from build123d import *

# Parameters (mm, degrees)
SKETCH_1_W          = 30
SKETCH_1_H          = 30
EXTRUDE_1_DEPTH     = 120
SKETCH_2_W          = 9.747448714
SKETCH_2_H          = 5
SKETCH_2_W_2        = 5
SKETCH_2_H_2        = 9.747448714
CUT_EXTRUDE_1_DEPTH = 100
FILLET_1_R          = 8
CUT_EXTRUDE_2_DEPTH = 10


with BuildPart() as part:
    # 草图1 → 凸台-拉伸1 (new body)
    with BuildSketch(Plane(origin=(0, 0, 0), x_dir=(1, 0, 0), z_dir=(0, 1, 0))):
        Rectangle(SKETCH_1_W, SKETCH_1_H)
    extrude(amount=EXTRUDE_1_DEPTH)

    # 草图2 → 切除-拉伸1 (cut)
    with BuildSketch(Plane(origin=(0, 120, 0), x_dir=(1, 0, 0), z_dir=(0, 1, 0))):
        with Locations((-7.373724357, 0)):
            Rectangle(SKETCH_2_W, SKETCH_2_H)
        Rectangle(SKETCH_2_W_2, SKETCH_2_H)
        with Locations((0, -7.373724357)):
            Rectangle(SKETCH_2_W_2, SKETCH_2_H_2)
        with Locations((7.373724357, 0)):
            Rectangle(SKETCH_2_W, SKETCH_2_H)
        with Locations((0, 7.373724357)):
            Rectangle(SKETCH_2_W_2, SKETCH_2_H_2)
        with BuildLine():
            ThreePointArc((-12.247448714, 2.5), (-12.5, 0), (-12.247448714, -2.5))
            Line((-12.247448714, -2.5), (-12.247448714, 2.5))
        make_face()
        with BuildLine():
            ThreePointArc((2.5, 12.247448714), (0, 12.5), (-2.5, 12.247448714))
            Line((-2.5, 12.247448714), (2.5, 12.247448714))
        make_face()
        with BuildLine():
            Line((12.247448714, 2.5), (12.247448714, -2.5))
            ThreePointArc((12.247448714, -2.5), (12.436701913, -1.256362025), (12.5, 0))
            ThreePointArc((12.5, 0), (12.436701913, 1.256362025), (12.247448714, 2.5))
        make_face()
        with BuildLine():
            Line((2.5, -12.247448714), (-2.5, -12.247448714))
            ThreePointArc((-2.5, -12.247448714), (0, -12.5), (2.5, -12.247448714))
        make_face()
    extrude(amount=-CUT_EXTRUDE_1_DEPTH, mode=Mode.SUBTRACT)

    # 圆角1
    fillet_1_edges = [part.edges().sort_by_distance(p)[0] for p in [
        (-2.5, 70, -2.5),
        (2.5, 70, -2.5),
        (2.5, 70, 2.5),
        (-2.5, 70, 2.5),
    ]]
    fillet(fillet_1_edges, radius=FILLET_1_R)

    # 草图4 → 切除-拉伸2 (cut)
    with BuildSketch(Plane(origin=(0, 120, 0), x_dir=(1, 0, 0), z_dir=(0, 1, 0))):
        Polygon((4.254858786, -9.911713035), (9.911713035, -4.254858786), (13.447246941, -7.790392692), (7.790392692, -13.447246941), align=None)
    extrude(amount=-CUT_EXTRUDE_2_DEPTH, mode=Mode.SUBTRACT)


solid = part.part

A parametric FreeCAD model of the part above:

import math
import FreeCAD as App
import Part
import Sketcher
from FreeCAD import Vector
Q = App.Units.Quantity


def edges_at(feature, points):
    """Names of the edges that pass closest to the given points."""
    edges = feature.Shape.Edges
    near = lambda p: min(range(len(edges)), key=lambda i: edges[i].distToShape(Part.Vertex(*p))[0])
    return sorted({f"Edge{near(p) + 1}" for p in points})

doc = App.newDocument("Part")
body = doc.addObject("PartDesign::Body", "Body")

sketch1 = doc.addObject("Sketcher::SketchObject", "Sketch")
body.addObject(sketch1)
sketch1.AttachmentSupport = (doc.XZ_Plane, [""])
sketch1.MapMode = "FlatFace"
sketch1.addGeometry(Part.LineSegment(Vector(-15, -15, 0), Vector(-15, 15, 0)), False)
sketch1.addGeometry(Part.LineSegment(Vector(-15, 15, 0), Vector(15, 15, 0)), False)
sketch1.addGeometry(Part.LineSegment(Vector(15, 15, 0), Vector(15, -15, 0)), False)
sketch1.addGeometry(Part.LineSegment(Vector(15, -15, 0), Vector(-15, -15, 0)), False)
sketch1.addConstraint(Sketcher.Constraint("Coincident", 0, 2, 1, 1))
sketch1.addConstraint(Sketcher.Constraint("Coincident", 1, 2, 2, 1))
sketch1.addConstraint(Sketcher.Constraint("Coincident", 2, 2, 3, 1))
sketch1.addConstraint(Sketcher.Constraint("Coincident", 3, 2, 0, 1))
sketch1.addConstraint(Sketcher.Constraint("Vertical", 0))
sketch1.addConstraint(Sketcher.Constraint("Horizontal", 1))
sketch1.addConstraint(Sketcher.Constraint("Vertical", 2))
sketch1.addConstraint(Sketcher.Constraint("Horizontal", 3))
sketch1.addConstraint(Sketcher.Constraint("Symmetric", 0, 2, 2, 2, -1, 1))
sketch1.addConstraint(Sketcher.Constraint("Equal", 3, 0))
sketch1.addConstraint(Sketcher.Constraint("DistanceX", 1, 1, 1, 2, 30.0))
pad1 = doc.addObject("PartDesign::Pad", "Pad")
body.addObject(pad1)
pad1.Profile = sketch1
pad1.Length = 120
pad1.Reversed = True

sketch2 = doc.addObject("Sketcher::SketchObject", "Sketch001")
body.addObject(sketch2)
sketch2.AttachmentSupport = (doc.XZ_Plane, [""])
sketch2.MapMode = "FlatFace"
sketch2.AttachmentOffset = App.Placement(Vector(0, 0, -120), App.Rotation())
sketch2.addGeometry(Part.LineSegment(Vector(-12.2, 2.5, 0), Vector(-2.5, 2.5, 0)), False)
sketch2.addGeometry(Part.LineSegment(Vector(-2.5, 2.5, 0), Vector(-2.5, 12.2, 0)), False)
sketch2.addGeometry(Part.ArcOfCircle(Part.Circle(Vector(0, 0, 0), Vector(0, 0, 1), 12.5), math.radians(78), math.radians(102)), False)
sketch2.addGeometry(Part.LineSegment(Vector(2.5, 12.2, 0), Vector(2.5, 2.5, 0)), False)
sketch2.addGeometry(Part.LineSegment(Vector(2.5, 2.5, 0), Vector(12.2, 2.5, 0)), False)
sketch2.addGeometry(Part.ArcOfCircle(Part.Circle(Vector(0, 0, 0), Vector(0, 0, 1), 12.5), math.radians(0), math.radians(11.54)), False)
sketch2.addGeometry(Part.ArcOfCircle(Part.Circle(Vector(0, 0, 0), Vector(0, 0, 1), 12.5), math.radians(-11.54), math.radians(0)), False)
sketch2.addGeometry(Part.LineSegment(Vector(12.2, -2.5, 0), Vector(2.5, -2.5, 0)), False)
sketch2.addGeometry(Part.LineSegment(Vector(2.5, -2.5, 0), Vector(2.5, -12.2, 0)), False)
sketch2.addGeometry(Part.ArcOfCircle(Part.Circle(Vector(0, 0, 0), Vector(0, 0, 1), 12.5), math.radians(-102), math.radians(-78)), False)
sketch2.addGeometry(Part.LineSegment(Vector(-2.5, -12.2, 0), Vector(-2.5, -2.5, 0)), False)
sketch2.addGeometry(Part.LineSegment(Vector(-2.5, -2.5, 0), Vector(-12.2, -2.5, 0)), False)
sketch2.addGeometry(Part.ArcOfCircle(Part.Circle(Vector(0, 0, 0), Vector(0, 0, 1), 12.5), math.radians(168), math.radians(192)), False)
sketch2.addConstraint(Sketcher.Constraint("Coincident", 0, 2, 1, 1))
sketch2.addConstraint(Sketcher.Constraint("Coincident", 1, 2, 2, 2))
sketch2.addConstraint(Sketcher.Constraint("Coincident", 2, 1, 3, 1))
sketch2.addConstraint(Sketcher.Constraint("Coincident", 3, 2, 4, 1))
sketch2.addConstraint(Sketcher.Constraint("Coincident", 4, 2, 5, 2))
sketch2.addConstraint(Sketcher.Constraint("Tangent", 5, 1, 6, 2))
sketch2.addConstraint(Sketcher.Constraint("Coincident", 6, 1, 7, 1))
sketch2.addConstraint(Sketcher.Constraint("Coincident", 7, 2, 8, 1))
sketch2.addConstraint(Sketcher.Constraint("Coincident", 8, 2, 9, 2))
sketch2.addConstraint(Sketcher.Constraint("Coincident", 9, 1, 10, 1))
sketch2.addConstraint(Sketcher.Constraint("Coincident", 10, 2, 11, 1))
sketch2.addConstraint(Sketcher.Constraint("Coincident", 11, 2, 12, 2))
sketch2.addConstraint(Sketcher.Constraint("Coincident", 12, 1, 0, 1))
sketch2.addConstraint(Sketcher.Constraint("Horizontal", 0))
sketch2.addConstraint(Sketcher.Constraint("Vertical", 1))
sketch2.addConstraint(Sketcher.Constraint("Vertical", 3))
sketch2.addConstraint(Sketcher.Constraint("Horizontal", 4))
sketch2.addConstraint(Sketcher.Constraint("Horizontal", 7))
sketch2.addConstraint(Sketcher.Constraint("Vertical", 8))
sketch2.addConstraint(Sketcher.Constraint("Vertical", 10))
sketch2.addConstraint(Sketcher.Constraint("Horizontal", 11))
sketch2.addConstraint(Sketcher.Constraint("Coincident", 2, 3, -1, 1))
sketch2.addConstraint(Sketcher.Constraint("Coincident", 5, 3, -1, 1))
sketch2.addConstraint(Sketcher.Constraint("Coincident", 9, 3, -1, 1))
sketch2.addConstraint(Sketcher.Constraint("Coincident", 12, 3, -1, 1))
sketch2.addConstraint(Sketcher.Constraint("Equal", 2, 5))
sketch2.addConstraint(Sketcher.Constraint("Equal", 5, 6))
sketch2.addConstraint(Sketcher.Constraint("Equal", 6, 9))
sketch2.addConstraint(Sketcher.Constraint("Equal", 9, 12))
sketch2.addConstraint(Sketcher.Constraint("Symmetric", 0, 2, 7, 2, -1, 1))
sketch2.addConstraint(Sketcher.Constraint("Symmetric", 3, 2, 10, 2, -1, 1))
sketch2.addConstraint(Sketcher.Constraint("Symmetric", 0, 2, 3, 2, -2))
sketch2.addConstraint(Sketcher.Constraint("PointOnObject", 5, 1, -1))
sketch2.addConstraint(Sketcher.Constraint("Equal", 11, 1))
sketch2.addConstraint(Sketcher.Constraint("Radius", 2, 12.5))
sketch2.addConstraint(Sketcher.Constraint("DistanceX", 1, 2, 2, 1, 5.0))
pocket1 = doc.addObject("PartDesign::Pocket", "Pocket")
body.addObject(pocket1)
pocket1.Profile = sketch2
pocket1.Length = 100
pocket1.Reversed = True
doc.recompute()

fillet = doc.addObject("PartDesign::Fillet", "Fillet")
body.addObject(fillet)
fillet.Base = (pocket1, edges_at(pocket1, [
    (-2.5, 70, -2.5),
    (2.5, 70, -2.5),
    (2.5, 70, 2.5),
    (-2.5, 70, 2.5),
]))
fillet.Radius = 8

sketch3 = doc.addObject("Sketcher::SketchObject", "Sketch002")
body.addObject(sketch3)
sketch3.AttachmentSupport = (doc.XZ_Plane, [""])
sketch3.MapMode = "FlatFace"
sketch3.AttachmentOffset = App.Placement(Vector(0, 0, -120), App.Rotation())
sketch3.addGeometry(Part.LineSegment(Vector(10, 4, 0), Vector(4, 10, 0)), False)
sketch3.addGeometry(Part.LineSegment(Vector(4, 10, 0), Vector(8, 13, 0)), False)
sketch3.addGeometry(Part.LineSegment(Vector(8, 13, 0), Vector(13, 8, 0)), False)
sketch3.addGeometry(Part.LineSegment(Vector(13, 8, 0), Vector(10, 4, 0)), False)
sketch3.addConstraint(Sketcher.Constraint("Coincident", 0, 2, 1, 1))
sketch3.addConstraint(Sketcher.Constraint("Coincident", 1, 2, 2, 1))
sketch3.addConstraint(Sketcher.Constraint("Coincident", 2, 2, 3, 1))
sketch3.addConstraint(Sketcher.Constraint("Coincident", 3, 2, 0, 1))
sketch3.addConstraint(Sketcher.Constraint("Perpendicular", 0, 1))
sketch3.addConstraint(Sketcher.Constraint("Perpendicular", 1, 2))
sketch3.addConstraint(Sketcher.Constraint("Perpendicular", 2, 3))
sketch3.addConstraint(Sketcher.Constraint("Angle", 0, Q("135 deg")))
sketch3.addConstraint(Sketcher.Constraint("Distance", 0, 8.0))
sketch3.addConstraint(Sketcher.Constraint("Distance", 1, 5.0))
sketch3.addConstraint(Sketcher.Constraint("DistanceX", -1, 1, 0, 2, 4.254859))
sketch3.addConstraint(Sketcher.Constraint("DistanceY", -1, 1, 3, 2, 4.254859))
pocket2 = doc.addObject("PartDesign::Pocket", "Pocket001")
body.addObject(pocket2)
pocket2.Profile = sketch3
pocket2.Length = 10
pocket2.Reversed = True

doc.recompute()
